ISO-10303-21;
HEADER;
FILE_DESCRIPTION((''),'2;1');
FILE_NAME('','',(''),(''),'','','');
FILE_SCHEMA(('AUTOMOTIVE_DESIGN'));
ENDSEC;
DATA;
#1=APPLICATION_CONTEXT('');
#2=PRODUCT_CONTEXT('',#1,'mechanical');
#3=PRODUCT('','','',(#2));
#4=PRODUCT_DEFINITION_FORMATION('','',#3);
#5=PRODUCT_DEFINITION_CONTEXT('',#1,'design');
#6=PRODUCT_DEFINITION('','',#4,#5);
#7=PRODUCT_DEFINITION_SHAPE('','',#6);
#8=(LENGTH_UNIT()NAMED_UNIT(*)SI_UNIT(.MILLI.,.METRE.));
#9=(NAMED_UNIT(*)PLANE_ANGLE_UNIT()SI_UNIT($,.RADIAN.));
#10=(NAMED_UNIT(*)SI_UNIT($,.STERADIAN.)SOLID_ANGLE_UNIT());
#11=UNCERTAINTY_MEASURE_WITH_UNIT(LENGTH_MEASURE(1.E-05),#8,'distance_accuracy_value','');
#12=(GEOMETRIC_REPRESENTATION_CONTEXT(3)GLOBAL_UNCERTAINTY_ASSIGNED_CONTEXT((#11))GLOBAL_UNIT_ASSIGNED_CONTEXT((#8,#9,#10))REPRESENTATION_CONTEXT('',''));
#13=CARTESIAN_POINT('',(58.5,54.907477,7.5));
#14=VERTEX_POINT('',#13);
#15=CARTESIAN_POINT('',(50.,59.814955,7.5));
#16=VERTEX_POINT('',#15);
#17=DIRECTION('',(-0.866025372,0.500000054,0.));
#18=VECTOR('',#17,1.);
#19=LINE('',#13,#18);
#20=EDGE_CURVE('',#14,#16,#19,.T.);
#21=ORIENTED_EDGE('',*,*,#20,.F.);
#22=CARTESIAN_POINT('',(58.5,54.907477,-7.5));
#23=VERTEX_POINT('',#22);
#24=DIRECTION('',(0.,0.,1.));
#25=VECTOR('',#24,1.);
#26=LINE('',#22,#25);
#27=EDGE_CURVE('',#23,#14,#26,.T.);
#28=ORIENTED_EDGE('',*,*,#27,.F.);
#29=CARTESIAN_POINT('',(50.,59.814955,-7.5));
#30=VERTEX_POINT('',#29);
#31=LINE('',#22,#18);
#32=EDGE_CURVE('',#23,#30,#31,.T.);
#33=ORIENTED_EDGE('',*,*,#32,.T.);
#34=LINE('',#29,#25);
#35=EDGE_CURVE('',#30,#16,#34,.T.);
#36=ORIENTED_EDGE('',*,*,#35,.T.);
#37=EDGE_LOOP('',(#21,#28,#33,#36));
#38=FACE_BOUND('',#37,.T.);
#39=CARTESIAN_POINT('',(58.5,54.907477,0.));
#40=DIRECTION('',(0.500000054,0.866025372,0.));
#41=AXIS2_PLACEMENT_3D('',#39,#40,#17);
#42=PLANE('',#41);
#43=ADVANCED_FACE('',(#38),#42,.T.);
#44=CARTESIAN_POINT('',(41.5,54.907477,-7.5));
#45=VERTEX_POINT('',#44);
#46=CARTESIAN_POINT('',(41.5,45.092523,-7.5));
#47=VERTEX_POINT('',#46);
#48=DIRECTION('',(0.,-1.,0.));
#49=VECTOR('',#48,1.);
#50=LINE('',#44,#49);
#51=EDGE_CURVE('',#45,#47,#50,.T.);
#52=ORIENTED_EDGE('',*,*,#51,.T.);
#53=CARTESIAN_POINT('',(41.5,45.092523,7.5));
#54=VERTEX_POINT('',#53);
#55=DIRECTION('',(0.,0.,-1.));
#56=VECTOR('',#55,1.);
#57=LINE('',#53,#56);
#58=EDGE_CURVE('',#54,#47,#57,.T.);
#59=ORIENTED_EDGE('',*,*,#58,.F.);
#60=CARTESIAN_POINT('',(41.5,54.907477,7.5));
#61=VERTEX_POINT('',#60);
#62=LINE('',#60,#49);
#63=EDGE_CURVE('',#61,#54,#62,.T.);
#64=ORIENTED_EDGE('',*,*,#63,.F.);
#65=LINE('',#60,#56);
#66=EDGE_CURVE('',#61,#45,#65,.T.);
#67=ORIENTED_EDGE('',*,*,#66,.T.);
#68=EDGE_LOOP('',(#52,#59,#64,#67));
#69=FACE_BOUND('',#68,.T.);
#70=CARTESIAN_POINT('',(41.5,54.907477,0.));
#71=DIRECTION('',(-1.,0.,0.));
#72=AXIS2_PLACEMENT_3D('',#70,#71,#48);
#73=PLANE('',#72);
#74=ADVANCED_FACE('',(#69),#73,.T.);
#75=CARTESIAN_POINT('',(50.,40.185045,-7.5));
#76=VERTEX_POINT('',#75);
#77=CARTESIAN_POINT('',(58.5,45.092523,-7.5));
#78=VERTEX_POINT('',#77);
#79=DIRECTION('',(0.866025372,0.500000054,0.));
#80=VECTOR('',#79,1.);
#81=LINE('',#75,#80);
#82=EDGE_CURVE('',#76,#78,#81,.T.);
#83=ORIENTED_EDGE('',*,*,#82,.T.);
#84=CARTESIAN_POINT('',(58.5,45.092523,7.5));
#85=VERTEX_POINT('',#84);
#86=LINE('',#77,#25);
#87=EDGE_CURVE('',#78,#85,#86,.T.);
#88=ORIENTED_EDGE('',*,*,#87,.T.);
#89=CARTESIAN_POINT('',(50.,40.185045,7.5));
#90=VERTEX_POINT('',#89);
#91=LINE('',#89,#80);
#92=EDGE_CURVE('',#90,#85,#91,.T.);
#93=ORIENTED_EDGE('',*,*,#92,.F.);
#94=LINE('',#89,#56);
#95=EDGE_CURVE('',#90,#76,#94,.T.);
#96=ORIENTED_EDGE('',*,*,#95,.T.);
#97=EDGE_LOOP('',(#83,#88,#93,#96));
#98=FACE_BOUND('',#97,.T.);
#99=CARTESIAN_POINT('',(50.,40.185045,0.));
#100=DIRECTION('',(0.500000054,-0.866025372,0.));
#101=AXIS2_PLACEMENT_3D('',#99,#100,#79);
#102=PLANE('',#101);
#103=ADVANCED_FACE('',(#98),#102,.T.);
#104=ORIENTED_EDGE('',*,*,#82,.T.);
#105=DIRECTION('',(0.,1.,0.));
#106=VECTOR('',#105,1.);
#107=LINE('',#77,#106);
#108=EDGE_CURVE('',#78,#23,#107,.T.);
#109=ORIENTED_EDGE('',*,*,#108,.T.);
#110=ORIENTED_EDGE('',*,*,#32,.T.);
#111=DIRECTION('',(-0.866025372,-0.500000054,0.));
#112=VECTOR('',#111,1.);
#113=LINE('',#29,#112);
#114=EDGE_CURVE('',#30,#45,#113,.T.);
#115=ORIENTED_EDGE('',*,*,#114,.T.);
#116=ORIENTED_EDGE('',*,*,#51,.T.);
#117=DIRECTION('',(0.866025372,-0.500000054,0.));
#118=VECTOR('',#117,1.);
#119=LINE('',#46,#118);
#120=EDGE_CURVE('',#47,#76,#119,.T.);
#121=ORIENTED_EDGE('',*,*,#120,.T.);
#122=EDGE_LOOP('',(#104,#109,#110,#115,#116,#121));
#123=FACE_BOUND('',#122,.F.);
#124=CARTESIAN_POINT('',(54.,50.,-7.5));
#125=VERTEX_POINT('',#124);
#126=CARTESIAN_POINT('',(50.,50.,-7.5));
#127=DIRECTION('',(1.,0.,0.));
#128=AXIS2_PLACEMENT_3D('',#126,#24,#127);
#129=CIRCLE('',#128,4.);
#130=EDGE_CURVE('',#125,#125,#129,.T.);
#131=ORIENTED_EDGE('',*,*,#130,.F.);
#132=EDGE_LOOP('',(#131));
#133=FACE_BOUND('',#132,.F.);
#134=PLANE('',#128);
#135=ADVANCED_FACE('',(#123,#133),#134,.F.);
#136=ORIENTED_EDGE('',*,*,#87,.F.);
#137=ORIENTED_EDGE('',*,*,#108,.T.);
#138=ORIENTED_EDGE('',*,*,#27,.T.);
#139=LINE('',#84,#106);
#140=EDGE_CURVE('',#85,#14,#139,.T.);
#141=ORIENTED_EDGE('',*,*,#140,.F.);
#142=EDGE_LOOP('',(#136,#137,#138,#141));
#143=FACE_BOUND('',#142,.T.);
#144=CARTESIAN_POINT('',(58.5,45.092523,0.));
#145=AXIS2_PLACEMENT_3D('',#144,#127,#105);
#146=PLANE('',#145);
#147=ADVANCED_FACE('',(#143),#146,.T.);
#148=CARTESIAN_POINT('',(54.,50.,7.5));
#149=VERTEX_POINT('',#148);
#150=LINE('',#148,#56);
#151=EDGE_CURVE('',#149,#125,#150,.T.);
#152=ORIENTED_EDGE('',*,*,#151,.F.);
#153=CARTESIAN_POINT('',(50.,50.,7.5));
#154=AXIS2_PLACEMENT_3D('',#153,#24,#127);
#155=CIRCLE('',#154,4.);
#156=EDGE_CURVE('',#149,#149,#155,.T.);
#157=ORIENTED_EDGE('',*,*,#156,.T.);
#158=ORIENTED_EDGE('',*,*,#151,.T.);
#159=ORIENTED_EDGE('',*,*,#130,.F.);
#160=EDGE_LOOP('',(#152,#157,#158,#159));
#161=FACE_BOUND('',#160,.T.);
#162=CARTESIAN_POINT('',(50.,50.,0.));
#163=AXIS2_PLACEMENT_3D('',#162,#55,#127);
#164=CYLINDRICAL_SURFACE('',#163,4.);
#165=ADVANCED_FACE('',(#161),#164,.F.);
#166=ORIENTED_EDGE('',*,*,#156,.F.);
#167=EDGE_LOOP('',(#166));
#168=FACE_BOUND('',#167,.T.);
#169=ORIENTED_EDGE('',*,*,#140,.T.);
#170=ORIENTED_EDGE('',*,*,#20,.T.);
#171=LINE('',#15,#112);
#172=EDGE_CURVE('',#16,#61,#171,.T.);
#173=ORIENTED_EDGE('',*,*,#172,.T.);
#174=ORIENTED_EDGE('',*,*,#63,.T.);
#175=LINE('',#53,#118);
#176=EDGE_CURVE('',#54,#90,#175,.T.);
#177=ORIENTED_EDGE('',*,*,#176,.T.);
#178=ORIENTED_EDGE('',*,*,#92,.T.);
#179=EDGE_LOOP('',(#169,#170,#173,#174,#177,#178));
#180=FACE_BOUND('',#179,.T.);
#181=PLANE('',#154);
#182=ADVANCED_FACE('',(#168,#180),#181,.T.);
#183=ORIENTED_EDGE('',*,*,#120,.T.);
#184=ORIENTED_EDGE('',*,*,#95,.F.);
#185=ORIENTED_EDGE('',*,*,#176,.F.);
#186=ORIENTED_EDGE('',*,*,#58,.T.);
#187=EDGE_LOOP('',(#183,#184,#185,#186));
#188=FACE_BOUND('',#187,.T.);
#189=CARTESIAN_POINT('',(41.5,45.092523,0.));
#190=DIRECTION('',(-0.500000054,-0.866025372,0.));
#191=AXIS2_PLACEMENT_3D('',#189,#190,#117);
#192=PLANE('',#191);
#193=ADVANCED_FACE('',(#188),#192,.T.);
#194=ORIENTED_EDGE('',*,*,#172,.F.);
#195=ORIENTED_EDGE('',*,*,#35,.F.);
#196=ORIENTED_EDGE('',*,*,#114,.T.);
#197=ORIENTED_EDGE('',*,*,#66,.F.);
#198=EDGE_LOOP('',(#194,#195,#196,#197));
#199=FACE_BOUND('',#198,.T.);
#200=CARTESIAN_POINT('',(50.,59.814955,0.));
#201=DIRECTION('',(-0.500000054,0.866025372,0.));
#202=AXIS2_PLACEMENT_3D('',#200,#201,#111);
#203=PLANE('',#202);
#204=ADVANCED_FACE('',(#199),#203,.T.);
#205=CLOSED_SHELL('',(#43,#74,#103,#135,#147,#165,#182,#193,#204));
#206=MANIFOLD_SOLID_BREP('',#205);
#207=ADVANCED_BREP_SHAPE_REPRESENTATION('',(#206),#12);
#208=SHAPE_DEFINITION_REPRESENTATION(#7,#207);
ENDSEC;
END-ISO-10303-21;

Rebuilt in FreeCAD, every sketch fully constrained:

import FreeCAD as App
import Part
import Sketcher

V = App.Vector
Q = App.Units.Quantity


def add_polygon(sketch, points):
    """Adds a closed chain of lines whose ends are joined by coincident constraints."""
    first, n = sketch.GeometryCount, len(points)
    for a, b in zip(points, points[1:] + points[:1]):
        sketch.addGeometry(Part.LineSegment(App.Vector(*a, 0), App.Vector(*b, 0)), False)
    for i in range(n):
        sketch.addConstraint(Sketcher.Constraint("Coincident", first + i, 2, first + (i + 1) % n, 1))

doc = App.newDocument("Part")
body = doc.addObject("PartDesign::Body", "Body")

sketch1 = body.newObject("Sketcher::SketchObject", "Sketch")
sketch1.AttachmentSupport = (doc.getObject("XY_Plane"), [""])
sketch1.MapMode = "FlatFace"
add_polygon(sketch1, [(0, -9.8), (8.5, -4.9), (8.5, 4.9), (0, 9.8), (-8.5, 4.9), (-8.5, -4.9)])
sketch1.addGeometry(Part.Circle(V(0, 0, 0), V(0, 0, 1), 4), False)
sketch1.addConstraint([
    Sketcher.Constraint("Vertical", 1),
    Sketcher.Constraint("Vertical", 4),
    Sketcher.Constraint("Coincident", 6, 3, -1, 1),
    Sketcher.Constraint("Symmetric", 0, 2, 3, 2, -1, 1),
    Sketcher.Constraint("Symmetric", 2, 2, 5, 2, -1, 1),
    Sketcher.Constraint("PointOnObject", 2, 2, -2),
    Sketcher.Constraint("Parallel", 2, 5),
    Sketcher.Constraint("Horizontal", 1, 2, 3, 2),
    Sketcher.Constraint("Diameter", 6, 8.0),
    Sketcher.Constraint("Angle", 0, Q("30.000004 deg")),
    Sketcher.Constraint("DistanceX", 3, 2, 1, 2, 17.0),
    Sketcher.Constraint("DistanceY", 1, 1, 1, 2, 9.814954),
])
pad1 = body.newObject("PartDesign::Pad", "Pad")
pad1.Profile = sketch1
pad1.Length = 15
pad1.Midplane = True
body2 = doc.addObject("PartDesign::Body", "Body001")
doc.recompute()

body.Placement = App.Placement(V(50, 50, 0), App.Rotation(V(0, 0, 1), 0))
boolean = body2.newObject("PartDesign::Boolean", "Boolean")
boolean.Type = "Fuse"
boolean.addObjects([body])

doc.recompute()
